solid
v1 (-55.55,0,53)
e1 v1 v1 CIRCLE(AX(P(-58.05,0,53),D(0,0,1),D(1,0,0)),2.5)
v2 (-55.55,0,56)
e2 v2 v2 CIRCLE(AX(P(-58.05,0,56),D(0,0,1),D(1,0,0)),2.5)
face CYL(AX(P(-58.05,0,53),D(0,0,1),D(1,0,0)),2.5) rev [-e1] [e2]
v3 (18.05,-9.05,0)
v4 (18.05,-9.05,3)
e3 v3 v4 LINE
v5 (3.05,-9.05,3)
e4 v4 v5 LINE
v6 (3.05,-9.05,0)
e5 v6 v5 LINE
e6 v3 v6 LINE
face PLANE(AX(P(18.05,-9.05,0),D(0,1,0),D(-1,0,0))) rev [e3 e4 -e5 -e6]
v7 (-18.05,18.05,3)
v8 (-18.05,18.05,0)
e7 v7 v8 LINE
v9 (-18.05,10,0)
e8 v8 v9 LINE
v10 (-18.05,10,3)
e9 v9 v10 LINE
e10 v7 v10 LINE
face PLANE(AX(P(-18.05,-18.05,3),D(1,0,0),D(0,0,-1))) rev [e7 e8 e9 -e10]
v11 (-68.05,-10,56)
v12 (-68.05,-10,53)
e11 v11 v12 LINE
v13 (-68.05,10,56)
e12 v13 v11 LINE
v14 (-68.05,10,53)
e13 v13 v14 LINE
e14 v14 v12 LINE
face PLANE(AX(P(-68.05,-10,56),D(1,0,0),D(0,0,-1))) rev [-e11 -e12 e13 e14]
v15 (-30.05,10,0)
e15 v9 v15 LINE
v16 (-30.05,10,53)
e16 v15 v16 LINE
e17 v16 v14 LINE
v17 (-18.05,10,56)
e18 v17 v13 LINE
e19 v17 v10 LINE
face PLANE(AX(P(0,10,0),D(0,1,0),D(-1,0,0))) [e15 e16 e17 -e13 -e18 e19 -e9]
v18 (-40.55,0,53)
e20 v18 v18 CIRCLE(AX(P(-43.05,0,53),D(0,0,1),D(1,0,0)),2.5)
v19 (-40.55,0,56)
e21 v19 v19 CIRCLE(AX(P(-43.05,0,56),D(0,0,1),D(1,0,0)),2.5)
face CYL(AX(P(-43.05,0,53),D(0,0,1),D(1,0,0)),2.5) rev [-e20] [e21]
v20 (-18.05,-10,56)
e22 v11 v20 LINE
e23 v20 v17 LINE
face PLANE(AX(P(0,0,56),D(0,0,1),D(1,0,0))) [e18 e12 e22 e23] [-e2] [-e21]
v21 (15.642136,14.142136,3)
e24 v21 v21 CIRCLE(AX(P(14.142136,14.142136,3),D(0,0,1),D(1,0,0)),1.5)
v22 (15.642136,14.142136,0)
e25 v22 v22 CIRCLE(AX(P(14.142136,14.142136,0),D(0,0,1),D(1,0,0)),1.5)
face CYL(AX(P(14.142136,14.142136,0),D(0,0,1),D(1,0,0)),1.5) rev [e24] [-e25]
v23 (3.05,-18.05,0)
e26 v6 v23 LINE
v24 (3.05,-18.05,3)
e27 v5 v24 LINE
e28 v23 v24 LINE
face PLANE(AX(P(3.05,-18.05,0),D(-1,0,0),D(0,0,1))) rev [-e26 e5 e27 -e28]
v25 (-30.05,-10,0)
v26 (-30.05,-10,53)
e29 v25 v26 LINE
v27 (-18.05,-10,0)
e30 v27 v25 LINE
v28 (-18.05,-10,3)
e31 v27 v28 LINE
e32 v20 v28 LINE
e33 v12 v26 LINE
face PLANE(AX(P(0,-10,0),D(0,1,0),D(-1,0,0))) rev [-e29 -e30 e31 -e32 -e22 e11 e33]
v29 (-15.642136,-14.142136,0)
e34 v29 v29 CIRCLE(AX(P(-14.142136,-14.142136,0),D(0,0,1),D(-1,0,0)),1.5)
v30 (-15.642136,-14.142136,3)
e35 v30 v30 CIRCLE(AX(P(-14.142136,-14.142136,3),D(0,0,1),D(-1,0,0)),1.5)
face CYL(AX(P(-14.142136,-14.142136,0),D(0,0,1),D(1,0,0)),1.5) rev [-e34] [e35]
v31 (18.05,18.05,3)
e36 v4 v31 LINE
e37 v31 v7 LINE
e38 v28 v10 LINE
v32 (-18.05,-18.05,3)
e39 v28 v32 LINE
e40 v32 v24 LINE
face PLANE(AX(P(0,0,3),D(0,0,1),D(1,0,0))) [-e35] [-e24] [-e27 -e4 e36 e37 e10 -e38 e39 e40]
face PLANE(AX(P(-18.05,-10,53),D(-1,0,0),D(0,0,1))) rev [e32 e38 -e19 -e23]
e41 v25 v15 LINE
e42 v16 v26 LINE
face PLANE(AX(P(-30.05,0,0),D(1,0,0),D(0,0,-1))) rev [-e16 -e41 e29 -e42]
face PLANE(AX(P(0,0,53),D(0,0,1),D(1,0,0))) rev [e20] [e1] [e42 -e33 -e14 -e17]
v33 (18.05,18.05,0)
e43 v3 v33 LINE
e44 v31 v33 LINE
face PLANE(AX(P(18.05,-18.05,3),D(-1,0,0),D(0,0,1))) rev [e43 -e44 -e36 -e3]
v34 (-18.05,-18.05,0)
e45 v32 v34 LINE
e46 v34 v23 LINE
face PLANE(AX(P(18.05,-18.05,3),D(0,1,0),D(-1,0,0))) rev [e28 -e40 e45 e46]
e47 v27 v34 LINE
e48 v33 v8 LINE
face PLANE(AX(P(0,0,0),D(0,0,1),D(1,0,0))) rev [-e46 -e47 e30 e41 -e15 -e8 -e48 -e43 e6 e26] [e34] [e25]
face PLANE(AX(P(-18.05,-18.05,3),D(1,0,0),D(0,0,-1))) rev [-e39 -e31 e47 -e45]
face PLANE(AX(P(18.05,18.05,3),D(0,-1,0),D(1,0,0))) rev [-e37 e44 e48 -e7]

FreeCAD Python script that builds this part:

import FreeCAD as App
import Part
import Sketcher
Q = App.Units.Quantity

doc = App.newDocument("Part")
body = doc.addObject("PartDesign::Body", "Body")

# Sketch on XY plane
sketch1 = doc.addObject("Sketcher::SketchObject", "Sketch")
body.addObject(sketch1)
sketch1.AttachmentSupport = (doc.XY_Plane, [""])
sketch1.MapMode = "FlatFace"
sketch1.addGeometry([
    Part.LineSegment(App.Vector(-18, 18, 0), App.Vector(-18, -18, 0)),
    Part.LineSegment(App.Vector(-18, -18, 0), App.Vector(18, -18, 0)),
    Part.LineSegment(App.Vector(18, -18, 0), App.Vector(18, 18, 0)),
    Part.LineSegment(App.Vector(18, 18, 0), App.Vector(-18, 18, 0)),
], False)
sketch1.addConstraint([
    Sketcher.Constraint("Coincident", 0, 2, 1, 1),
    Sketcher.Constraint("Coincident", 1, 2, 2, 1),
    Sketcher.Constraint("Coincident", 2, 2, 3, 1),
    Sketcher.Constraint("Coincident", 3, 2, 0, 1),
    Sketcher.Constraint("Vertical", 0),
    Sketcher.Constraint("Horizontal", 1),
    Sketcher.Constraint("Vertical", 2),
    Sketcher.Constraint("Horizontal", 3),
    Sketcher.Constraint("Symmetric", 0, 2, 2, 2, -1, 1),
    Sketcher.Constraint("Equal", 3, 0),
    Sketcher.Constraint("DistanceX", 1, 1, 1, 2, Q("36.1 mm")),
])
pad1 = doc.addObject("PartDesign::Pad", "Pad")
body.addObject(pad1)
pad1.Profile = sketch1
pad1.Length = 3

# Sketch on XY plane
sketch2 = doc.addObject("Sketcher::SketchObject", "Sketch001")
body.addObject(sketch2)
sketch2.AttachmentSupport = (doc.XY_Plane, [""])
sketch2.MapMode = "FlatFace"
sketch2.AttachmentOffset = App.Placement(App.Vector(0, 0, 3), App.Rotation())
sketch2.addGeometry([
    Part.Circle(App.Vector(14.1, 14.1, 0), App.Vector(0, 0, 1), 1.5),
    Part.Circle(App.Vector(-14.1, -14.1, 0), App.Vector(0, 0, 1), 1.5),
], False)
sketch2.addConstraint([
    Sketcher.Constraint("Equal", 0, 1),
    Sketcher.Constraint("Symmetric", 0, 3, 1, 3, -1, 1),
    Sketcher.Constraint("Diameter", 0, Q("3 mm")),
    Sketcher.Constraint("DistanceX", 1, 3, 0, 3, Q("28.284271 mm")),
    Sketcher.Constraint("DistanceY", 1, 3, 0, 3, Q("28.284271 mm")),
])
pocket1 = doc.addObject("PartDesign::Pocket", "Pocket")
body.addObject(pocket1)
pocket1.Profile = sketch2
pocket1.Length = 3

# Sketch on XY plane
sketch3 = doc.addObject("Sketcher::SketchObject", "Sketch002")
body.addObject(sketch3)
sketch3.AttachmentSupport = (doc.XY_Plane, [""])
sketch3.MapMode = "FlatFace"
sketch3.AttachmentOffset = App.Placement(App.Vector(0, 0, 3), App.Rotation())
sketch3.addGeometry([
    Part.LineSegment(App.Vector(3, -9, 0), App.Vector(3, -18, 0)),
    Part.LineSegment(App.Vector(3, -18, 0), App.Vector(18, -18, 0)),
    Part.LineSegment(App.Vector(18, -18, 0), App.Vector(18, -9, 0)),
    Part.LineSegment(App.Vector(18, -9, 0), App.Vector(3, -9, 0)),
], False)
sketch3.addConstraint([
    Sketcher.Constraint("Coincident", 0, 2, 1, 1),
    Sketcher.Constraint("Coincident", 1, 2, 2, 1),
    Sketcher.Constraint("Coincident", 2, 2, 3, 1),
    Sketcher.Constraint("Coincident", 3, 2, 0, 1),
    Sketcher.Constraint("Vertical", 0),
    Sketcher.Constraint("Horizontal", 1),
    Sketcher.Constraint("Vertical", 2),
    Sketcher.Constraint("Horizontal", 3),
    Sketcher.Constraint("DistanceX", 1, 1, 1, 2, Q("15 mm")),
    Sketcher.Constraint("DistanceY", 0, 2, 0, 1, Q("9 mm")),
    Sketcher.Constraint("DistanceX", -1, 1, 0, 2, Q("3.05 mm")),
    Sketcher.Constraint("DistanceY", 0, 2, -1, 1, Q("18.05 mm")),
])
pocket2 = doc.addObject("PartDesign::Pocket", "Pocket001")
body.addObject(pocket2)
pocket2.Profile = sketch3
pocket2.Length = 3

# Sketch on XY plane
sketch4 = doc.addObject("Sketcher::SketchObject", "Sketch003")
body.addObject(sketch4)
sketch4.AttachmentSupport = (doc.XY_Plane, [""])
sketch4.MapMode = "FlatFace"
sketch4.AttachmentOffset = App.Placement(App.Vector(0, 0, 3), App.Rotation())
sketch4.addGeometry([
    Part.LineSegment(App.Vector(-30, 10, 0), App.Vector(-30, -10, 0)),
    Part.LineSegment(App.Vector(-30, -10, 0), App.Vector(-18, -10, 0)),
    Part.LineSegment(App.Vector(-18, -10, 0), App.Vector(-18, 10, 0)),
    Part.LineSegment(App.Vector(-18, 10, 0), App.Vector(-30, 10, 0)),
], False)
sketch4.addConstraint([
    Sketcher.Constraint("Coincident", 0, 2, 1, 1),
    Sketcher.Constraint("Coincident", 1, 2, 2, 1),
    Sketcher.Constraint("Coincident", 2, 2, 3, 1),
    Sketcher.Constraint("Coincident", 3, 2, 0, 1),
    Sketcher.Constraint("Vertical", 0),
    Sketcher.Constraint("Horizontal", 1),
    Sketcher.Constraint("Vertical", 2),
    Sketcher.Constraint("Horizontal", 3),
    Sketcher.Constraint("DistanceX", 1, 1, 1, 2, Q("12 mm")),
    Sketcher.Constraint("DistanceY", 0, 2, 0, 1, Q("20 mm")),
    Sketcher.Constraint("DistanceY", 0, 2, -1, 1, Q("10 mm")),
    Sketcher.Constraint("DistanceX", 0, 2, -1, 1, Q("30.05 mm")),
])
pad2 = doc.addObject("PartDesign::Pad", "Pad001")
body.addObject(pad2)
pad2.Profile = sketch4
pad2.Length = 3
pad2.Reversed = True

# Sketch on XY plane
sketch5 = doc.addObject("Sketcher::SketchObject", "Sketch004")
body.addObject(sketch5)
sketch5.AttachmentSupport = (doc.XY_Plane, [""])
sketch5.MapMode = "FlatFace"
sketch5.AttachmentOffset = App.Placement(App.Vector(0, 0, 3), App.Rotation())
sketch5.addGeometry([
    Part.LineSegment(App.Vector(-30, 10, 0), App.Vector(-30, -10, 0)),
    Part.LineSegment(App.Vector(-30, -10, 0), App.Vector(-18, -10, 0)),
    Part.LineSegment(App.Vector(-18, -10, 0), App.Vector(-18, 10, 0)),
    Part.LineSegment(App.Vector(-18, 10, 0), App.Vector(-30, 10, 0)),
], False)
sketch5.addConstraint([
    Sketcher.Constraint("Coincident", 0, 2, 1, 1),
    Sketcher.Constraint("Coincident", 1, 2, 2, 1),
    Sketcher.Constraint("Coincident", 2, 2, 3, 1),
    Sketcher.Constraint("Coincident", 3, 2, 0, 1),
    Sketcher.Constraint("Vertical", 0),
    Sketcher.Constraint("Horizontal", 1),
    Sketcher.Constraint("Vertical", 2),
    Sketcher.Constraint("Horizontal", 3),
    Sketcher.Constraint("DistanceX", 1, 1, 1, 2, Q("12 mm")),
    Sketcher.Constraint("DistanceY", 0, 2, 0, 1, Q("20 mm")),
    Sketcher.Constraint("DistanceY", 0, 2, -1, 1, Q("10 mm")),
    Sketcher.Constraint("DistanceX", 0, 2, -1, 1, Q("30.05 mm")),
])
pad3 = doc.addObject("PartDesign::Pad", "Pad002")
body.addObject(pad3)
pad3.Profile = sketch5
pad3.Length = 50

# Sketch on XY plane
sketch6 = doc.addObject("Sketcher::SketchObject", "Sketch005")
body.addObject(sketch6)
sketch6.AttachmentSupport = (doc.XY_Plane, [""])
sketch6.MapMode = "FlatFace"
sketch6.AttachmentOffset = App.Placement(App.Vector(0, 0, 53), App.Rotation())
sketch6.addGeometry([
    Part.LineSegment(App.Vector(-68, 10, 0), App.Vector(-68, -10, 0)),
    Part.LineSegment(App.Vector(-68, -10, 0), App.Vector(-18, -10, 0)),
    Part.LineSegment(App.Vector(-18, -10, 0), App.Vector(-18, 10, 0)),
    Part.LineSegment(App.Vector(-18, 10, 0), App.Vector(-68, 10, 0)),
], False)
sketch6.addConstraint([
    Sketcher.Constraint("Coincident", 0, 2, 1, 1),
    Sketcher.Constraint("Coincident", 1, 2, 2, 1),
    Sketcher.Constraint("Coincident", 2, 2, 3, 1),
    Sketcher.Constraint("Coincident", 3, 2, 0, 1),
    Sketcher.Constraint("Vertical", 0),
    Sketcher.Constraint("Horizontal", 1),
    Sketcher.Constraint("Vertical", 2),
    Sketcher.Constraint("Horizontal", 3),
    Sketcher.Constraint("DistanceX", 1, 1, 1, 2, Q("50 mm")),
    Sketcher.Constraint("DistanceY", 0, 2, 0, 1, Q("20 mm")),
    Sketcher.Constraint("DistanceY", 0, 2, -1, 1, Q("10 mm")),
    Sketcher.Constraint("DistanceX", 0, 2, -1, 1, Q("68.05 mm")),
])
pad4 = doc.addObject("PartDesign::Pad", "Pad003")
body.addObject(pad4)
pad4.Profile = sketch6
pad4.Length = 3

# Sketch on XY plane
sketch7 = doc.addObject("Sketcher::SketchObject", "Sketch006")
body.addObject(sketch7)
sketch7.AttachmentSupport = (doc.XY_Plane, [""])
sketch7.MapMode = "FlatFace"
sketch7.AttachmentOffset = App.Placement(App.Vector(0, 0, 56), App.Rotation())
sketch7.addGeometry([
    Part.Circle(App.Vector(-58, 0, 0), App.Vector(0, 0, 1), 2.5),
    Part.Circle(App.Vector(-43, 0, 0), App.Vector(0, 0, 1), 2.5),
], False)
sketch7.addConstraint([
    Sketcher.Constraint("Equal", 0, 1),
    Sketcher.Constraint("PointOnObject", 0, 3, -1),
    Sketcher.Constraint("PointOnObject", 1, 3, -1),
    Sketcher.Constraint("Diameter", 0, Q("5 mm")),
    Sketcher.Constraint("DistanceX", 0, 3, 1, 3, Q("15 mm")),
    Sketcher.Constraint("DistanceX", 0, 3, -1, 1, Q("58.05 mm")),
])
pocket3 = doc.addObject("PartDesign::Pocket", "Pocket002")
body.addObject(pocket3)
pocket3.Profile = sketch7
pocket3.Length = 3

doc.recompute()
